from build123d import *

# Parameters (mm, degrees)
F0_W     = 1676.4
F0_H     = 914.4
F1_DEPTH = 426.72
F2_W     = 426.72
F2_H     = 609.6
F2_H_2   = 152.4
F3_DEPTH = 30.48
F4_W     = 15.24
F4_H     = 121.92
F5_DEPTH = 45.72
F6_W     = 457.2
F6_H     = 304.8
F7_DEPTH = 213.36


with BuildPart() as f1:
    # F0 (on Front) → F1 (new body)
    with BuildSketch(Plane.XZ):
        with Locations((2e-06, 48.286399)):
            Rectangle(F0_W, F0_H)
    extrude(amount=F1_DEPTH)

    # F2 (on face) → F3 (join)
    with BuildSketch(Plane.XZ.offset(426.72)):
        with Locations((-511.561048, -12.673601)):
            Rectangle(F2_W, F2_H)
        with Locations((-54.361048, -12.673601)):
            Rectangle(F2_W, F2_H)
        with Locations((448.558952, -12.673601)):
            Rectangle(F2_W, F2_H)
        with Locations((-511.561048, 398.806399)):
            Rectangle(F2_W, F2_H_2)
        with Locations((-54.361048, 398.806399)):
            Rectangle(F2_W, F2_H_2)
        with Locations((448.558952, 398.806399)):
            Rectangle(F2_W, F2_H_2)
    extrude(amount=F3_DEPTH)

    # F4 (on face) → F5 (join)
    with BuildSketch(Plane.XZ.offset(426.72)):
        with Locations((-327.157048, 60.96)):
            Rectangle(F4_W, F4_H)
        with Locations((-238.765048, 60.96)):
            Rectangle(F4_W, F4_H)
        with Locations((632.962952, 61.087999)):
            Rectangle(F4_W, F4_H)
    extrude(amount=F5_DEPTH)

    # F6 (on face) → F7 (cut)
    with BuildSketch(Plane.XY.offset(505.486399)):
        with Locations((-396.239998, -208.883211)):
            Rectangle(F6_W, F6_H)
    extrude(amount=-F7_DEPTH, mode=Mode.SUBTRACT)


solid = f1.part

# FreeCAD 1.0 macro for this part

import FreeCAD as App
import Part
import Sketcher
from FreeCAD import Vector
Q = App.Units.Quantity

doc = App.newDocument("Part")
body = doc.addObject("PartDesign::Body", "Body")

# Sketch on XZ plane
sketch1 = body.newObject("Sketcher::SketchObject", "Sketch")
sketch1.AttachmentSupport = (doc.getObject("XZ_Plane"), [""])
sketch1.MapMode = "FlatFace"
sketch1.addGeometry(Part.LineSegment(Vector(-838, 505, 0), Vector(-838, -409, 0)), False)
sketch1.addGeometry(Part.LineSegment(Vector(-838, -409, 0), Vector(838, -409, 0)), False)
sketch1.addGeometry(Part.LineSegment(Vector(838, -409, 0), Vector(838, 505, 0)), False)
sketch1.addGeometry(Part.LineSegment(Vector(838, 505, 0), Vector(-838, 505, 0)), False)
sketch1.addConstraint(Sketcher.Constraint("Coincident", 0, 2, 1, 1))
sketch1.addConstraint(Sketcher.Constraint("Coincident", 1, 2, 2, 1))
sketch1.addConstraint(Sketcher.Constraint("Coincident", 2, 2, 3, 1))
sketch1.addConstraint(Sketcher.Constraint("Coincident", 3, 2, 0, 1))
sketch1.addConstraint(Sketcher.Constraint("Vertical", 0))
sketch1.addConstraint(Sketcher.Constraint("Horizontal", 1))
sketch1.addConstraint(Sketcher.Constraint("Vertical", 2))
sketch1.addConstraint(Sketcher.Constraint("Horizontal", 3))
sketch1.addConstraint(Sketcher.Constraint("DistanceX", 1, 1, 1, 2, Q("66 in")))
sketch1.addConstraint(Sketcher.Constraint("DistanceY", 0, 2, 0, 1, Q("36 in")))
sketch1.addConstraint(Sketcher.Constraint("DistanceX", 0, 2, -1, 1, Q("32.9999999 in")))
sketch1.addConstraint(Sketcher.Constraint("DistanceY", 0, 2, -1, 1, Q("408.913601 mm")))
pad1 = body.newObject("PartDesign::Pad", "Pad")
pad1.Profile = sketch1
pad1.Length = Q("16.8 in")

# Sketch on XZ plane
sketch2 = body.newObject("Sketcher::SketchObject", "Sketch001")
sketch2.AttachmentSupport = (doc.getObject("XZ_Plane"), [""])
sketch2.MapMode = "FlatFace"
sketch2.AttachmentOffset = App.Placement(Vector(0, 0, 16.8 * 25.4), App.Rotation())
sketch2.addGeometry(Part.LineSegment(Vector(-725, 292, 0), Vector(-725, -317, 0)), False)
sketch2.addGeometry(Part.LineSegment(Vector(-725, -317, 0), Vector(-298, -317, 0)), False)
sketch2.addGeometry(Part.LineSegment(Vector(-298, -317, 0), Vector(-298, 292, 0)), False)
sketch2.addGeometry(Part.LineSegment(Vector(-298, 292, 0), Vector(-725, 292, 0)), False)
sketch2.addGeometry(Part.LineSegment(Vector(-268, 292, 0), Vector(-268, -317, 0)), False)
sketch2.addGeometry(Part.LineSegment(Vector(-268, -317, 0), Vector(159, -317, 0)), False)
sketch2.addGeometry(Part.LineSegment(Vector(159, -317, 0), Vector(159, 292, 0)), False)
sketch2.addGeometry(Part.LineSegment(Vector(159, 292, 0), Vector(-268, 292, 0)), False)
sketch2.addGeometry(Part.LineSegment(Vector(235, 292, 0), Vector(235, -317, 0)), False)
sketch2.addGeometry(Part.LineSegment(Vector(235, -317, 0), Vector(662, -317, 0)), False)
sketch2.addGeometry(Part.LineSegment(Vector(662, -317, 0), Vector(662, 292, 0)), False)
sketch2.addGeometry(Part.LineSegment(Vector(662, 292, 0), Vector(235, 292, 0)), False)
sketch2.addGeometry(Part.LineSegment(Vector(-725, 475, 0), Vector(-725, 323, 0)), False)
sketch2.addGeometry(Part.LineSegment(Vector(-725, 323, 0), Vector(-298, 323, 0)), False)
sketch2.addGeometry(Part.LineSegment(Vector(-298, 323, 0), Vector(-298, 475, 0)), False)
sketch2.addGeometry(Part.LineSegment(Vector(-298, 475, 0), Vector(-725, 475, 0)), False)
sketch2.addGeometry(Part.LineSegment(Vector(-268, 475, 0), Vector(-268, 323, 0)), False)
sketch2.addGeometry(Part.LineSegment(Vector(-268, 323, 0), Vector(159, 323, 0)), False)
sketch2.addGeometry(Part.LineSegment(Vector(159, 323, 0), Vector(159, 475, 0)), False)
sketch2.addGeometry(Part.LineSegment(Vector(159, 475, 0), Vector(-268, 475, 0)), False)
sketch2.addGeometry(Part.LineSegment(Vector(235, 475, 0), Vector(235, 323, 0)), False)
sketch2.addGeometry(Part.LineSegment(Vector(235, 323, 0), Vector(662, 323, 0)), False)
sketch2.addGeometry(Part.LineSegment(Vector(662, 323, 0), Vector(662, 475, 0)), False)
sketch2.addGeometry(Part.LineSegment(Vector(662, 475, 0), Vector(235, 475, 0)), False)
sketch2.addConstraint(Sketcher.Constraint("Coincident", 0, 2, 1, 1))
sketch2.addConstraint(Sketcher.Constraint("Coincident", 1, 2, 2, 1))
sketch2.addConstraint(Sketcher.Constraint("Coincident", 2, 2, 3, 1))
sketch2.addConstraint(Sketcher.Constraint("Coincident", 3, 2, 0, 1))
sketch2.addConstraint(Sketcher.Constraint("Coincident", 4, 2, 5, 1))
sketch2.addConstraint(Sketcher.Constraint("Coincident", 5, 2, 6, 1))
sketch2.addConstraint(Sketcher.Constraint("Coincident", 6, 2, 7, 1))
sketch2.addConstraint(Sketcher.Constraint("Coincident", 7, 2, 4, 1))
sketch2.addConstraint(Sketcher.Constraint("Coincident", 8, 2, 9, 1))
sketch2.addConstraint(Sketcher.Constraint("Coincident", 9, 2, 10, 1))
sketch2.addConstraint(Sketcher.Constraint("Coincident", 10, 2, 11, 1))
sketch2.addConstraint(Sketcher.Constraint("Coincident", 11, 2, 8, 1))
sketch2.addConstraint(Sketcher.Constraint("Coincident", 12, 2, 13, 1))
sketch2.addConstraint(Sketcher.Constraint("Coincident", 13, 2, 14, 1))
sketch2.addConstraint(Sketcher.Constraint("Coincident", 14, 2, 15, 1))
sketch2.addConstraint(Sketcher.Constraint("Coincident", 15, 2, 12, 1))
sketch2.addConstraint(Sketcher.Constraint("Coincident", 16, 2, 17, 1))
sketch2.addConstraint(Sketcher.Constraint("Coincident", 17, 2, 18, 1))
sketch2.addConstraint(Sketcher.Constraint("Coincident", 18, 2, 19, 1))
sketch2.addConstraint(Sketcher.Constraint("Coincident", 19, 2, 16, 1))
sketch2.addConstraint(Sketcher.Constraint("Coincident", 20, 2, 21, 1))
sketch2.addConstraint(Sketcher.Constraint("Coincident", 21, 2, 22, 1))
sketch2.addConstraint(Sketcher.Constraint("Coincident", 22, 2, 23, 1))
sketch2.addConstraint(Sketcher.Constraint("Coincident", 23, 2, 20, 1))
sketch2.addConstraint(Sketcher.Constraint("Vertical", 0))
sketch2.addConstraint(Sketcher.Constraint("Horizontal", 1))
sketch2.addConstraint(Sketcher.Constraint("Vertical", 2))
sketch2.addConstraint(Sketcher.Constraint("Horizontal", 3))
sketch2.addConstraint(Sketcher.Constraint("Vertical", 4))
sketch2.addConstraint(Sketcher.Constraint("Horizontal", 5))
sketch2.addConstraint(Sketcher.Constraint("Vertical", 6))
sketch2.addConstraint(Sketcher.Constraint("Horizontal", 7))
sketch2.addConstraint(Sketcher.Constraint("Vertical", 8))
sketch2.addConstraint(Sketcher.Constraint("Horizontal", 9))
sketch2.addConstraint(Sketcher.Constraint("Vertical", 10))
sketch2.addConstraint(Sketcher.Constraint("Horizontal", 11))
sketch2.addConstraint(Sketcher.Constraint("Vertical", 12))
sketch2.addConstraint(Sketcher.Constraint("Horizontal", 13))
sketch2.addConstraint(Sketcher.Constraint("Vertical", 14))
sketch2.addConstraint(Sketcher.Constraint("Horizontal", 15))
sketch2.addConstraint(Sketcher.Constraint("Vertical", 16))
sketch2.addConstraint(Sketcher.Constraint("Horizontal", 17))
sketch2.addConstraint(Sketcher.Constraint("Vertical", 18))
sketch2.addConstraint(Sketcher.Constraint("Horizontal", 19))
sketch2.addConstraint(Sketcher.Constraint("Vertical", 20))
sketch2.addConstraint(Sketcher.Constraint("Horizontal", 21))
sketch2.addConstraint(Sketcher.Constraint("Vertical", 22))
sketch2.addConstraint(Sketcher.Constraint("Horizontal", 23))
sketch2.addConstraint(Sketcher.Constraint("Horizontal", 1, 2, 4, 2))
sketch2.addConstraint(Sketcher.Constraint("Horizontal", 3, 2, 6, 2))
sketch2.addConstraint(Sketcher.Constraint("Horizontal", 5, 2, 8, 2))
sketch2.addConstraint(Sketcher.Constraint("Horizontal", 7, 2, 10, 2))
sketch2.addConstraint(Sketcher.Constraint("Horizontal", 13, 2, 16, 2))
sketch2.addConstraint(Sketcher.Constraint("Horizontal", 15, 2, 18, 2))
sketch2.addConstraint(Sketcher.Constraint("Horizontal", 17, 2, 20, 2))
sketch2.addConstraint(Sketcher.Constraint("Horizontal", 19, 2, 22, 2))
sketch2.addConstraint(Sketcher.Constraint("Vertical", 3, 2, 12, 2))
sketch2.addConstraint(Sketcher.Constraint("Vertical", 2, 2, 13, 2))
sketch2.addConstraint(Sketcher.Constraint("Vertical", 7, 2, 16, 2))
sketch2.addConstraint(Sketcher.Constraint("Vertical", 6, 2, 17, 2))
sketch2.addConstraint(Sketcher.Constraint("Vertical", 11, 2, 20, 2))
sketch2.addConstraint(Sketcher.Constraint("Vertical", 10, 2, 21, 2))
sketch2.addConstraint(Sketcher.Constraint("Equal", 3, 5))
sketch2.addConstraint(Sketcher.Constraint("Equal", 7, 9))
sketch2.addConstraint(Sketcher.Constraint("DistanceY", 0, 2, 0, 1, Q("24 in")))
sketch2.addConstraint(Sketcher.Constraint("DistanceY", 12, 2, 12, 1, Q("6 in")))
sketch2.addConstraint(Sketcher.Constraint("DistanceX", 1, 1, 1, 2, Q("16.8 in")))
sketch2.addConstraint(Sketcher.Constraint("DistanceX", 0, 2, 4, 2, Q("18 in")))
sketch2.addConstraint(Sketcher.Constraint("DistanceX", 5, 2, 8, 2, Q("3 in")))
sketch2.addConstraint(Sketcher.Constraint("DistanceY", 3, 2, 12, 2, Q("1.2 in")))
sketch2.addConstraint(Sketcher.Constraint("DistanceY", 0, 2, -1, 1, Q("317.473601 mm")))
sketch2.addConstraint(Sketcher.Constraint("DistanceX", 0, 2, -1, 1, Q("724.921048 mm")))
pad2 = body.newObject("PartDesign::Pad", "Pad001")
pad2.Profile = sketch2
pad2.Length = Q("1.2 in")

# Sketch on XZ plane
sketch3 = body.newObject("Sketcher::SketchObject", "Sketch002")
sketch3.AttachmentSupport = (doc.getObject("XZ_Plane"), [""])
sketch3.MapMode = "FlatFace"
sketch3.AttachmentOffset = App.Placement(Vector(0, 0, 16.8 * 25.4), App.Rotation())
sketch3.addGeometry(Part.LineSegment(Vector(-335, 122, 0), Vector(-335, 0, 0)), False)
sketch3.addGeometry(Part.LineSegment(Vector(-335, 0, 0), Vector(-320, 0, 0)), False)
sketch3.addGeometry(Part.LineSegment(Vector(-320, 0, 0), Vector(-320, 122, 0)), False)
sketch3.addGeometry(Part.LineSegment(Vector(-320, 122, 0), Vector(-335, 122, 0)), False)
sketch3.addGeometry(Part.LineSegment(Vector(-246, 122, 0), Vector(-246, 0, 0)), False)
sketch3.addGeometry(Part.LineSegment(Vector(-246, 0, 0), Vector(-231, 0, 0)), False)
sketch3.addGeometry(Part.LineSegment(Vector(-231, 0, 0), Vector(-231, 122, 0)), False)
sketch3.addGeometry(Part.LineSegment(Vector(-231, 122, 0), Vector(-246, 122, 0)), False)
sketch3.addGeometry(Part.LineSegment(Vector(625, 122, 0), Vector(625, 0, 0)), False)
sketch3.addGeometry(Part.LineSegment(Vector(625, 0, 0), Vector(641, 0, 0)), False)
sketch3.addGeometry(Part.LineSegment(Vector(641, 0, 0), Vector(641, 122, 0)), False)
sketch3.addGeometry(Part.LineSegment(Vector(641, 122, 0), Vector(625, 122, 0)), False)
sketch3.addConstraint(Sketcher.Constraint("Coincident", 0, 2, 1, 1))
sketch3.addConstraint(Sketcher.Constraint("Coincident", 1, 2, 2, 1))
sketch3.addConstraint(Sketcher.Constraint("Coincident", 2, 2, 3, 1))
sketch3.addConstraint(Sketcher.Constraint("Coincident", 3, 2, 0, 1))
sketch3.addConstraint(Sketcher.Constraint("Coincident", 4, 2, 5, 1))
sketch3.addConstraint(Sketcher.Constraint("Coincident", 5, 2, 6, 1))
sketch3.addConstraint(Sketcher.Constraint("Coincident", 6, 2, 7, 1))
sketch3.addConstraint(Sketcher.Constraint("Coincident", 7, 2, 4, 1))
sketch3.addConstraint(Sketcher.Constraint("Coincident", 8, 2, 9, 1))
sketch3.addConstraint(Sketcher.Constraint("Coincident", 9, 2, 10, 1))
sketch3.addConstraint(Sketcher.Constraint("Coincident", 10, 2, 11, 1))
sketch3.addConstraint(Sketcher.Constraint("Coincident", 11, 2, 8, 1))
sketch3.addConstraint(Sketcher.Constraint("Vertical", 0))
sketch3.addConstraint(Sketcher.Constraint("Horizontal", 1))
sketch3.addConstraint(Sketcher.Constraint("Vertical", 2))
sketch3.addConstraint(Sketcher.Constraint("Horizontal", 3))
sketch3.addConstraint(Sketcher.Constraint("Vertical", 4))
sketch3.addConstraint(Sketcher.Constraint("Horizontal", 5))
sketch3.addConstraint(Sketcher.Constraint("Vertical", 6))
sketch3.addConstraint(Sketcher.Constraint("Horizontal", 7))
sketch3.addConstraint(Sketcher.Constraint("Vertical", 8))
sketch3.addConstraint(Sketcher.Constraint("Horizontal", 9))
sketch3.addConstraint(Sketcher.Constraint("Vertical", 10))
sketch3.addConstraint(Sketcher.Constraint("Horizontal", 11))
sketch3.addConstraint(Sketcher.Constraint("PointOnObject", 0, 2, -1))
sketch3.addConstraint(Sketcher.Constraint("PointOnObject", 4, 2, -1))
sketch3.addConstraint(Sketcher.Constraint("Horizontal", 3, 2, 6, 2))
sketch3.addConstraint(Sketcher.Constraint("Equal", 3, 5))
sketch3.addConstraint(Sketcher.Constraint("Equal", 7, 9))
sketch3.addConstraint(Sketcher.Constraint("Equal", 6, 8))
sketch3.addConstraint(Sketcher.Constraint("DistanceX", 1, 1, 1, 2, Q("0.6 in")))
sketch3.addConstraint(Sketcher.Constraint("DistanceY", 0, 2, 0, 1, Q("4.8 in")))
sketch3.addConstraint(Sketcher.Constraint("DistanceX", 1, 2, 8, 2, Q("37.2 in")))
sketch3.addConstraint(Sketcher.Constraint("DistanceX", 1, 2, 4, 2, Q("2.88 in")))
sketch3.addConstraint(Sketcher.Constraint("DistanceY", -1, 1, 8, 2, Q("0.127999 mm")))
sketch3.addConstraint(Sketcher.Constraint("DistanceX", 0, 2, -1, 1, Q("334.777048 mm")))
pad3 = body.newObject("PartDesign::Pad", "Pad002")
pad3.Profile = sketch3
pad3.Length = Q("1.8 in")

# Sketch on XY plane
sketch4 = body.newObject("Sketcher::SketchObject", "Sketch003")
sketch4.AttachmentSupport = (doc.getObject("XY_Plane"), [""])
sketch4.MapMode = "FlatFace"
sketch4.AttachmentOffset = App.Placement(Vector(0, 0, 505.486399), App.Rotation())
sketch4.addGeometry(Part.LineSegment(Vector(-625, -56, 0), Vector(-625, -361, 0)), False)
sketch4.addGeometry(Part.LineSegment(Vector(-625, -361, 0), Vector(-168, -361, 0)), False)
sketch4.addGeometry(Part.LineSegment(Vector(-168, -361, 0), Vector(-168, -56, 0)), False)
sketch4.addGeometry(Part.LineSegment(Vector(-168, -56, 0), Vector(-625, -56, 0)), False)
sketch4.addConstraint(Sketcher.Constraint("Coincident", 0, 2, 1, 1))
sketch4.addConstraint(Sketcher.Constraint("Coincident", 1, 2, 2, 1))
sketch4.addConstraint(Sketcher.Constraint("Coincident", 2, 2, 3, 1))
sketch4.addConstraint(Sketcher.Constraint("Coincident", 3, 2, 0, 1))
sketch4.addConstraint(Sketcher.Constraint("Vertical", 0))
sketch4.addConstraint(Sketcher.Constraint("Horizontal", 1))
sketch4.addConstraint(Sketcher.Constraint("Vertical", 2))
sketch4.addConstraint(Sketcher.Constraint("Horizontal", 3))
sketch4.addConstraint(Sketcher.Constraint("DistanceX", 1, 1, 1, 2, Q("18 in")))
sketch4.addConstraint(Sketcher.Constraint("DistanceY", 0, 2, 0, 1, Q("12 in")))
sketch4.addConstraint(Sketcher.Constraint("DistanceX", 0, 2, -1, 1, Q("24.5999999 in")))
sketch4.addConstraint(Sketcher.Constraint("DistanceY", 0, 2, -1, 1, Q("361.283211 mm")))
pocket1 = body.newObject("PartDesign::Pocket", "Pocket")
pocket1.Profile = sketch4
pocket1.Length = Q("8.4 in")

doc.recompute()
